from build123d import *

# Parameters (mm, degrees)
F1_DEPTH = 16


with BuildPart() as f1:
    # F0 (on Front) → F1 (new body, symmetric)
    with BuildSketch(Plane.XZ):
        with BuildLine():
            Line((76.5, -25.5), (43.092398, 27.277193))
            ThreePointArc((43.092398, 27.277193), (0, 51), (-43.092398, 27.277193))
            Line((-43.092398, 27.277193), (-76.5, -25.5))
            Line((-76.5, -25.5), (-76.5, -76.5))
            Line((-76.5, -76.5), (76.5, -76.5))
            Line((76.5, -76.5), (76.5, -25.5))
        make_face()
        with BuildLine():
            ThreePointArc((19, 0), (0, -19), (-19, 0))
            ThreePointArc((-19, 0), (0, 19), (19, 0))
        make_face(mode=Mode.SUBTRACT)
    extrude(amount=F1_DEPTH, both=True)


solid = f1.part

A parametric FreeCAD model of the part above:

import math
import FreeCAD as App
import Part
import Sketcher
from FreeCAD import Vector

doc = App.newDocument("Part")
params = doc.addObject("Spreadsheet::Sheet", "Params")
for row, (alias, value) in enumerate([
    ("sketch1_diameter", "38 mm"),
    ("sketch1_radius", "51 mm"),
    ("sketch1_width", "153 mm"),
    ("sketch1_height", "51 mm"),
    ("pad1_length", "32 mm"),
], start=1):
    params.set(f"A{row}", alias)
    params.set(f"B{row}", "=" + value)
    params.setAlias(f"B{row}", alias)

body = doc.addObject("PartDesign::Body", "Body")

# Sketch on XZ plane
sketch1 = doc.addObject("Sketcher::SketchObject", "Sketch")
body.addObject(sketch1)
sketch1.AttachmentSupport = (doc.XZ_Plane, [""])
sketch1.MapMode = "FlatFace"
sketch1.addGeometry([
    Part.LineSegment(Vector(76, -26, 0), Vector(43, 27, 0)),  # 0
    Part.ArcOfCircle(Part.Circle(Vector(0, 0, 0), Vector(0, 0, 1), 51), math.radians(32), math.radians(148)),  # 1
    Part.LineSegment(Vector(-43, 27, 0), Vector(-76, -26, 0)),  # 2
    Part.LineSegment(Vector(-76, -26, 0), Vector(-76, -76, 0)),  # 3
    Part.LineSegment(Vector(-76, -76, 0), Vector(76, -76, 0)),  # 4
    Part.LineSegment(Vector(76, -76, 0), Vector(76, -26, 0)),  # 5
    Part.Circle(Vector(0, 0, 0), Vector(0, 0, 1), 19),  # 6
], False)
sketch1.addConstraint([
    Sketcher.Constraint("Tangent", 0, 2, 1, 1),
    Sketcher.Constraint("Tangent", 1, 2, 2, 1),
    Sketcher.Constraint("Coincident", 2, 2, 3, 1),
    Sketcher.Constraint("Coincident", 3, 2, 4, 1),
    Sketcher.Constraint("Coincident", 4, 2, 5, 1),
    Sketcher.Constraint("Coincident", 5, 2, 0, 1),
    Sketcher.Constraint("Vertical", 3),
    Sketcher.Constraint("Horizontal", 4),
    Sketcher.Constraint("Vertical", 5),
    Sketcher.Constraint("Coincident", 1, 3, -1, 1),
    Sketcher.Constraint("Coincident", 6, 3, -1, 1),
    Sketcher.Constraint("Symmetric", 2, 2, 5, 2, -2),
    Sketcher.Constraint("Diameter", 6, 38.0),
    Sketcher.Constraint("Radius", 1, 51.0),
    Sketcher.Constraint("DistanceX", 4, 1, 4, 2, 153.0),
    Sketcher.Constraint("DistanceY", 3, 2, 3, 1, 51.0),
    Sketcher.Constraint("DistanceY", 2, 2, -1, 1, 25.5),
])
sketch1.setExpression("Constraints[12]", "Params.sketch1_diameter")
sketch1.setExpression("Constraints[13]", "Params.sketch1_radius")
sketch1.setExpression("Constraints[14]", "Params.sketch1_width")
sketch1.setExpression("Constraints[15]", "Params.sketch1_height")
pad1 = doc.addObject("PartDesign::Pad", "Pad")
body.addObject(pad1)
pad1.Profile = sketch1
pad1.setExpression("Length", "Params.pad1_length")
pad1.Midplane = True

doc.recompute()
